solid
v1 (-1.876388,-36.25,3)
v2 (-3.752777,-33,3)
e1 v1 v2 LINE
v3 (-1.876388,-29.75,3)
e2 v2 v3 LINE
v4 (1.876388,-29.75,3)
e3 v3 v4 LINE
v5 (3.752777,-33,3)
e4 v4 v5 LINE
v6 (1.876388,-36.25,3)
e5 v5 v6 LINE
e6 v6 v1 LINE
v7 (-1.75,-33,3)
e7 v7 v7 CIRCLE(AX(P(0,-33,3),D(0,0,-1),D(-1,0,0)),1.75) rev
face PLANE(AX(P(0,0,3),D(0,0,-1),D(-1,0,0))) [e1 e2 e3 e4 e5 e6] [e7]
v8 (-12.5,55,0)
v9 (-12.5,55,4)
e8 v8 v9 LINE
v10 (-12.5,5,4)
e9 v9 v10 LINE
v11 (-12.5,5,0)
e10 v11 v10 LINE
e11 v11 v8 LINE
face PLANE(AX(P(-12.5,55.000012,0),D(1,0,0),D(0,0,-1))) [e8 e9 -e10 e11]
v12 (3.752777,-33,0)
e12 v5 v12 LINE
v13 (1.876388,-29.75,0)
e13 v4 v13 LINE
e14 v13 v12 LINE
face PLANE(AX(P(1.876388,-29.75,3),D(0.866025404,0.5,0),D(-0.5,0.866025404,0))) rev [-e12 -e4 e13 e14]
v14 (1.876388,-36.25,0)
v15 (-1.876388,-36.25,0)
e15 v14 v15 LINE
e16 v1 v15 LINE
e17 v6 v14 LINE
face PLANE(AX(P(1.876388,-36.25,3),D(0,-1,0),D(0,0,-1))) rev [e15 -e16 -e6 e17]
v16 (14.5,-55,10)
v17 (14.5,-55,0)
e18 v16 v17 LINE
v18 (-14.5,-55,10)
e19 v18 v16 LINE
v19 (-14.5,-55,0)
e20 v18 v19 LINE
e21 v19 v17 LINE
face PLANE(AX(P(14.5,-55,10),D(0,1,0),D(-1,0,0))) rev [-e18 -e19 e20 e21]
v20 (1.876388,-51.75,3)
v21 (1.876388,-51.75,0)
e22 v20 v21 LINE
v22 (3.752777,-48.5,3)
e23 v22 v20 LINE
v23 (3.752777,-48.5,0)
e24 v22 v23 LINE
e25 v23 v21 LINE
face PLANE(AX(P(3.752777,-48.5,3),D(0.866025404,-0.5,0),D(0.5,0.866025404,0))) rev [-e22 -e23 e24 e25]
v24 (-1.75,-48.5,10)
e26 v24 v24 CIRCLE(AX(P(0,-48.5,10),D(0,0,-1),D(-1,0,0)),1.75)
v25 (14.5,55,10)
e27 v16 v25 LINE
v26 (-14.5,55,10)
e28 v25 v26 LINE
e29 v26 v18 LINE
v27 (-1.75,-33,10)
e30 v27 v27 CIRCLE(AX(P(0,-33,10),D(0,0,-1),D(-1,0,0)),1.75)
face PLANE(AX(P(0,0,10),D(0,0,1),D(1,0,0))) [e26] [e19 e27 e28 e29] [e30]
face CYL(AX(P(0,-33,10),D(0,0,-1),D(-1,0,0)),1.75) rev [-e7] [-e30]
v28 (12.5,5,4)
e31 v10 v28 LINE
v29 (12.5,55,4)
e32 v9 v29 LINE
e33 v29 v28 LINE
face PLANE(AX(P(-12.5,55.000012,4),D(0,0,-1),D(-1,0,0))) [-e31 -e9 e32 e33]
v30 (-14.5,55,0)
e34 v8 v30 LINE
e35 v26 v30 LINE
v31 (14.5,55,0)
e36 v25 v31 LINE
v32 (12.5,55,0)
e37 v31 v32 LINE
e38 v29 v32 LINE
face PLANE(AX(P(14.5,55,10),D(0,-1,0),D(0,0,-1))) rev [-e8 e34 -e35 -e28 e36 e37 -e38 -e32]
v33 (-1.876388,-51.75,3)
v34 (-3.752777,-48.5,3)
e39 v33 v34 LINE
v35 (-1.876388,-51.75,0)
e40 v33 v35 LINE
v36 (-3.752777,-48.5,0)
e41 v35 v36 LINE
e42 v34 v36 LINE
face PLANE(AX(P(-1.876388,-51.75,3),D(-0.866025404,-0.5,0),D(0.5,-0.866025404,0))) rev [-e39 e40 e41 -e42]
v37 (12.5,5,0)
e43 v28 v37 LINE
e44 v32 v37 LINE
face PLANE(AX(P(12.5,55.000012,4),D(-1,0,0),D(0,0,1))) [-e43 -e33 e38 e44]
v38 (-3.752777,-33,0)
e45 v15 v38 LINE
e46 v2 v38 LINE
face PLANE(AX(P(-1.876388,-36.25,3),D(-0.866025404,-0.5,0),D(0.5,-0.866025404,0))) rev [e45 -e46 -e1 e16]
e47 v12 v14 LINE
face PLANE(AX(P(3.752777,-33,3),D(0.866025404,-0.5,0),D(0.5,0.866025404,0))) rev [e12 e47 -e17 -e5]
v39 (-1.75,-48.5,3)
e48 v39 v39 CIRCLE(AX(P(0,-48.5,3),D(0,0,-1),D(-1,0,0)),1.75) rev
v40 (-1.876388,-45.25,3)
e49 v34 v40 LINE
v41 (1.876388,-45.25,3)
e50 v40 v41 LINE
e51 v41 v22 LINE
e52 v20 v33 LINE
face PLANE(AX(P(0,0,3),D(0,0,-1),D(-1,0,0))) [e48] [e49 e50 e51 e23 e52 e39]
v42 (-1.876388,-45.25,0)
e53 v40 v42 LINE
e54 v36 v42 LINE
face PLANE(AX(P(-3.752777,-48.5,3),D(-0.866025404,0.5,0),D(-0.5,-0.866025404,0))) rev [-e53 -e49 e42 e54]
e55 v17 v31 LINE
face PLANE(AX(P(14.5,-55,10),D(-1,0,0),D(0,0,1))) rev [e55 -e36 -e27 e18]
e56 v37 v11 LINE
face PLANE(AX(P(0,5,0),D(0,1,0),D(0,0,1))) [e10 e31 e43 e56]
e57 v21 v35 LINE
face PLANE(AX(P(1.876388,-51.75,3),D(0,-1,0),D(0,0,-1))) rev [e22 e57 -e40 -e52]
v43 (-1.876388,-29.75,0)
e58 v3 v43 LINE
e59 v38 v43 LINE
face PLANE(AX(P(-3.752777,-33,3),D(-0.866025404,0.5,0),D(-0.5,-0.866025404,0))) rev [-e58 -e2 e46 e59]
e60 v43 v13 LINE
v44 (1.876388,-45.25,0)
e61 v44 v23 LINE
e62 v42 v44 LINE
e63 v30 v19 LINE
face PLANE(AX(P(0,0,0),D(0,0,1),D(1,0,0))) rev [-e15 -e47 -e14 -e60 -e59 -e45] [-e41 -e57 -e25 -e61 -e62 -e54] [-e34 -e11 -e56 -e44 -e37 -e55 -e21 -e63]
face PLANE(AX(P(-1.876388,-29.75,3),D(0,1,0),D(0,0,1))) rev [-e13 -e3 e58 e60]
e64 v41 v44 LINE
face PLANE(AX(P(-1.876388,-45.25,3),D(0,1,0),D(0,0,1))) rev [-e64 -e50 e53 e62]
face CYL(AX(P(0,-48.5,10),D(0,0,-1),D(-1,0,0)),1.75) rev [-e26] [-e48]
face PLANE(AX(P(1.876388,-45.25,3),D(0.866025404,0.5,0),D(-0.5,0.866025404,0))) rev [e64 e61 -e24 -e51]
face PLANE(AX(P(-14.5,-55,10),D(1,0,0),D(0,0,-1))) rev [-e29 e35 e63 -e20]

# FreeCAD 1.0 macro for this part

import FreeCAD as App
import Part
import Sketcher

V = App.Vector
Q = App.Units.Quantity

doc = App.newDocument("Part")
body = doc.addObject("PartDesign::Body", "Body")

sketch1 = body.newObject("Sketcher::SketchObject", "Sketch")
sketch1.AttachmentSupport = (doc.getObject("XY_Plane"), [""])
sketch1.MapMode = "FlatFace"
sketch1.addGeometry([
    Part.LineSegment(V(-14, 55, 0), V(-14, -55, 0)),
    Part.LineSegment(V(-14, -55, 0), V(14, -55, 0)),
    Part.LineSegment(V(14, -55, 0), V(14, 55, 0)),
    Part.LineSegment(V(14, 55, 0), V(-14, 55, 0)),
], False)
sketch1.addConstraint([
    Sketcher.Constraint("Coincident", 0, 2, 1, 1),
    Sketcher.Constraint("Coincident", 1, 2, 2, 1),
    Sketcher.Constraint("Coincident", 2, 2, 3, 1),
    Sketcher.Constraint("Coincident", 3, 2, 0, 1),
    Sketcher.Constraint("Vertical", 0),
    Sketcher.Constraint("Horizontal", 1),
    Sketcher.Constraint("Vertical", 2),
    Sketcher.Constraint("Horizontal", 3),
    Sketcher.Constraint("Symmetric", 0, 2, 2, 2, -1, 1),
    Sketcher.Constraint("DistanceX", 1, 1, 1, 2, Q("29 mm")),
    Sketcher.Constraint("DistanceY", 0, 2, 0, 1, Q("110 mm")),
])
pad1 = body.newObject("PartDesign::Pad", "Pad")
pad1.Profile = sketch1
pad1.Length = 10

sketch2 = body.newObject("Sketcher::SketchObject", "Sketch001")
sketch2.AttachmentSupport = (doc.getObject("XZ_Plane"), [""])
sketch2.MapMode = "FlatFace"
sketch2.AttachmentOffset = App.Placement(V(0, 0, -55), App.Rotation())
sketch2.addGeometry([
    Part.LineSegment(V(-12.5, 0, 0), V(-12.5, 4, 0)),
    Part.LineSegment(V(-12.5, 4, 0), V(12.5, 4, 0)),
    Part.LineSegment(V(12.5, 4, 0), V(12.5, 0, 0)),
    Part.LineSegment(V(12.5, 0, 0), V(-12.5, 0, 0)),
], False)
sketch2.addConstraint([
    Sketcher.Constraint("Coincident", 0, 2, 1, 1),
    Sketcher.Constraint("Coincident", 1, 2, 2, 1),
    Sketcher.Constraint("Coincident", 2, 2, 3, 1),
    Sketcher.Constraint("Coincident", 3, 2, 0, 1),
    Sketcher.Constraint("Vertical", 0),
    Sketcher.Constraint("Horizontal", 1),
    Sketcher.Constraint("Vertical", 2),
    Sketcher.Constraint("Horizontal", 3),
    Sketcher.Constraint("Symmetric", 2, 2, 3, 2, -1, 1),
    Sketcher.Constraint("DistanceX", 1, 1, 1, 2, Q("25 mm")),
    Sketcher.Constraint("DistanceY", 0, 1, 0, 2, Q("4 mm")),
])
pocket1 = body.newObject("PartDesign::Pocket", "Pocket")
pocket1.Profile = sketch2
pocket1.Type = "TwoLengths"
pocket1.Length = 112.401302
pocket1.Length2 = 50

sketch3 = body.newObject("Sketcher::SketchObject", "Sketch002")
sketch3.AttachmentSupport = (doc.getObject("XY_Plane"), [""])
sketch3.MapMode = "FlatFace"
sketch3.addGeometry([
    Part.Circle(V(0, -48.5, 0), V(0, 0, 1), 1.8),
    Part.Circle(V(0, -33, 0), V(0, 0, 1), 1.8),
], False)
sketch3.addConstraint([
    Sketcher.Constraint("Equal", 0, 1),
    Sketcher.Constraint("PointOnObject", 0, 3, -2),
    Sketcher.Constraint("PointOnObject", 1, 3, -2),
    Sketcher.Constraint("Diameter", 0, Q("3.5 mm")),
    Sketcher.Constraint("DistanceY", 1, 3, -1, 1, Q("33 mm")),
    Sketcher.Constraint("DistanceY", 0, 3, -1, 1, Q("48.5 mm")),
])
pocket2 = body.newObject("PartDesign::Pocket", "Pocket001")
pocket2.Profile = sketch3
pocket2.Type = "ThroughAll"
pocket2.Reversed = True

sketch4 = body.newObject("Sketcher::SketchObject", "Sketch003")
sketch4.AttachmentSupport = (doc.getObject("XY_Plane"), [""])
sketch4.MapMode = "FlatFace"
sketch4.addGeometry([
    Part.LineSegment(V(-1.9, -51.8, 0), V(-3.8, -48.5, 0)),
    Part.LineSegment(V(-3.8, -48.5, 0), V(-1.9, -45.2, 0)),
    Part.LineSegment(V(-1.9, -45.2, 0), V(1.9, -45.2, 0)),
    Part.LineSegment(V(1.9, -45.2, 0), V(3.8, -48.5, 0)),
    Part.LineSegment(V(3.8, -48.5, 0), V(1.9, -51.8, 0)),
    Part.LineSegment(V(1.9, -51.8, 0), V(-1.9, -51.8, 0)),
    Part.LineSegment(V(-1.9, -36.2, 0), V(-3.8, -33, 0)),
    Part.LineSegment(V(-3.8, -33, 0), V(-1.9, -29.8, 0)),
    Part.LineSegment(V(-1.9, -29.8, 0), V(1.9, -29.8, 0)),
    Part.LineSegment(V(1.9, -29.8, 0), V(3.8, -33, 0)),
    Part.LineSegment(V(3.8, -33, 0), V(1.9, -36.2, 0)),
    Part.LineSegment(V(1.9, -36.2, 0), V(-1.9, -36.2, 0)),
], False)
sketch4.addConstraint([
    Sketcher.Constraint("Coincident", 0, 2, 1, 1),
    Sketcher.Constraint("Coincident", 1, 2, 2, 1),
    Sketcher.Constraint("Coincident", 2, 2, 3, 1),
    Sketcher.Constraint("Coincident", 3, 2, 4, 1),
    Sketcher.Constraint("Coincident", 4, 2, 5, 1),
    Sketcher.Constraint("Coincident", 5, 2, 0, 1),
    Sketcher.Constraint("Coincident", 6, 2, 7, 1),
    Sketcher.Constraint("Coincident", 7, 2, 8, 1),
    Sketcher.Constraint("Coincident", 8, 2, 9, 1),
    Sketcher.Constraint("Coincident", 9, 2, 10, 1),
    Sketcher.Constraint("Coincident", 10, 2, 11, 1),
    Sketcher.Constraint("Coincident", 11, 2, 6, 1),
    Sketcher.Constraint("Horizontal", 2),
    Sketcher.Constraint("Horizontal", 5),
    Sketcher.Constraint("Horizontal", 8),
    Sketcher.Constraint("Horizontal", 11),
    Sketcher.Constraint("Symmetric", 0, 2, 3, 2, -2),
    Sketcher.Constraint("Symmetric", 6, 2, 9, 2, -2),
    Sketcher.Constraint("Parallel", 0, 3),
    Sketcher.Constraint("Parallel", 1, 4),
    Sketcher.Constraint("Parallel", 3, 6),
    Sketcher.Constraint("Parallel", 4, 7),
    Sketcher.Constraint("Parallel", 6, 9),
    Sketcher.Constraint("Parallel", 7, 10),
    Sketcher.Constraint("Vertical", 2, 2, 4, 2),
    Sketcher.Constraint("Vertical", 1, 2, 5, 2),
    Sketcher.Constraint("Vertical", 0, 2, 6, 2),
    Sketcher.Constraint("Vertical", 5, 2, 7, 2),
    Sketcher.Constraint("Vertical", 8, 2, 10, 2),
    Sketcher.Constraint("Angle", 0, Q("120 deg")),
    Sketcher.Constraint("DistanceY", 6, 2, -1, 1, Q("33 mm")),
    Sketcher.Constraint("DistanceY", 2, 2, 10, 2, Q("9 mm")),
    Sketcher.Constraint("DistanceY", 0, 2, -1, 1, Q("48.5 mm")),
    Sketcher.Constraint("DistanceX", 2, 1, 2, 2, Q("3.752777 mm")),
])
pocket3 = body.newObject("PartDesign::Pocket", "Pocket002")
pocket3.Profile = sketch4
pocket3.Length = 3
pocket3.Reversed = True

doc.recompute()
